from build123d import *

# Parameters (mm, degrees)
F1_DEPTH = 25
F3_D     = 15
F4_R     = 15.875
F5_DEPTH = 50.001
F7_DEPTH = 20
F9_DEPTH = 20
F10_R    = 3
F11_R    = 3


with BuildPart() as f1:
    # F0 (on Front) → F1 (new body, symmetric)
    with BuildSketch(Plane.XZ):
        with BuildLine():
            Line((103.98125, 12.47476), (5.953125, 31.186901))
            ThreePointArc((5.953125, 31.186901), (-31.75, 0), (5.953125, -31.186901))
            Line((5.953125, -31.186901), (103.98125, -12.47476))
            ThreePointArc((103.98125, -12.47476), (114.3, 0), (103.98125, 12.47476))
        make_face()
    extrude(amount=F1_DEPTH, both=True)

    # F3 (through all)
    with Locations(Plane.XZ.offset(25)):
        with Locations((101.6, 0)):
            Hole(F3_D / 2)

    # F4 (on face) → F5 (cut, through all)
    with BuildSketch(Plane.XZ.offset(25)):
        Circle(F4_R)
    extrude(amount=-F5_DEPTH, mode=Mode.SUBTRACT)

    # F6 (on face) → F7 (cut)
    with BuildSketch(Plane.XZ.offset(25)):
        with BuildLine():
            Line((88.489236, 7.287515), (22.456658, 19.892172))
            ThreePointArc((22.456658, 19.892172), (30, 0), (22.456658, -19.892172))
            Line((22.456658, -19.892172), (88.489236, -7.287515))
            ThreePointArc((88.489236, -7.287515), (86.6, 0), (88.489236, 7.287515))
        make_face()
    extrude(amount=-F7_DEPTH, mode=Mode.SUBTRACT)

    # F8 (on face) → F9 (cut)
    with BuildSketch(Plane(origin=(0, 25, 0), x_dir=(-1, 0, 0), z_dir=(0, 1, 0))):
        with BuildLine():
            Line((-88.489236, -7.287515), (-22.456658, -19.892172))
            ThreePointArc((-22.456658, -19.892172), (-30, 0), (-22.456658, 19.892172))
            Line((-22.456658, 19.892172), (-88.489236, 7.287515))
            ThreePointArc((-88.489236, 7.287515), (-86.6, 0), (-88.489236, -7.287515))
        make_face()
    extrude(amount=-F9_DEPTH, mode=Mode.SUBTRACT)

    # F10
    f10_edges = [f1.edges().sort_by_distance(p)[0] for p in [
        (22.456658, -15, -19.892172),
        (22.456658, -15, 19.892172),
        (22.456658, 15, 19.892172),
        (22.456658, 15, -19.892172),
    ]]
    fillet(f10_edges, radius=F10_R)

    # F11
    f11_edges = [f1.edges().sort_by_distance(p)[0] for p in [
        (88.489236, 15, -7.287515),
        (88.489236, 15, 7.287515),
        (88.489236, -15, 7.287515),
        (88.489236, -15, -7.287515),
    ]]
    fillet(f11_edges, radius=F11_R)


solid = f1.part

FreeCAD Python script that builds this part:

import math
import FreeCAD as App
import Part
import Sketcher

V = App.Vector


def edges_at(feature, points):
    """Names of the edges that pass closest to the given points."""
    edges = feature.Shape.Edges
    near = lambda p: min(range(len(edges)), key=lambda i: edges[i].distToShape(Part.Vertex(*p))[0])
    return sorted({f"Edge{near(p) + 1}" for p in points})

doc = App.newDocument("Part")
body = doc.addObject("PartDesign::Body", "Body")

# Sketch on XZ plane
sketch1 = body.newObject("Sketcher::SketchObject", "Sketch")
sketch1.AttachmentSupport = (doc.getObject("XZ_Plane"), [""])
sketch1.MapMode = "FlatFace"
sketch1.addGeometry([
    Part.LineSegment(V(103.98125, 12.47476, 0), V(5.953125, 31.186901, 0)),
    Part.ArcOfCircle(Part.Circle(V(0, 0, 0), V(0, 0, 1), 31.75), math.radians(79.193077), math.radians(280.806923)),
    Part.LineSegment(V(5.953125, -31.186901, 0), V(103.98125, -12.47476, 0)),
    Part.ArcOfCircle(Part.Circle(V(101.600001, 0, 0), V(0, 0, 1), 12.699999), math.radians(-79.193079), math.radians(79.193079)),
], False)
sketch1.addConstraint([
    Sketcher.Constraint("Tangent", 0, 2, 1, 1),
    Sketcher.Constraint("Tangent", 1, 2, 2, 1),
    Sketcher.Constraint("Tangent", 2, 2, 3, 1),
    Sketcher.Constraint("Tangent", 3, 2, 0, 1),
    Sketcher.Constraint("Coincident", 1, 3, -1, 1),
    Sketcher.Constraint("PointOnObject", 3, 3, -1),
    Sketcher.Constraint("Radius", 3, 12.699999),
    Sketcher.Constraint("Radius", 1, 31.75),
    Sketcher.Constraint("DistanceX", -1, 1, 3, 3, 101.600001),
])
pad1 = body.newObject("PartDesign::Pad", "Pad")
pad1.Profile = sketch1
pad1.Length = 50
pad1.Midplane = True

# Sketch on XZ plane
sketch2 = body.newObject("Sketcher::SketchObject", "Sketch001")
sketch2.AttachmentSupport = (doc.getObject("XZ_Plane"), [""])
sketch2.MapMode = "FlatFace"
sketch2.AttachmentOffset = App.Placement(V(0, 0, 25), App.Rotation())
sketch2.addGeometry(Part.Circle(V(101.6, 0, 0), V(0, 0, 1), 7.5), False)
sketch2.addConstraint([
    Sketcher.Constraint("PointOnObject", 0, 3, -1),
    Sketcher.Constraint("Diameter", 0, 15.0),
    Sketcher.Constraint("DistanceX", -1, 1, 0, 3, 101.6),
])
doc.recompute()
hole = body.newObject("PartDesign::Hole", "Hole")
hole.Profile = sketch2
hole.ThreadType = "None"
hole.Diameter = 15
hole.DepthType = "ThroughAll"

# Sketch on XZ plane
sketch3 = body.newObject("Sketcher::SketchObject", "Sketch002")
sketch3.AttachmentSupport = (doc.getObject("XZ_Plane"), [""])
sketch3.MapMode = "FlatFace"
sketch3.AttachmentOffset = App.Placement(V(0, 0, 25), App.Rotation())
sketch3.addGeometry(Part.Circle(V(0, 0, 0), V(0, 0, 1), 15.875), False)
sketch3.addConstraint([
    Sketcher.Constraint("Coincident", 0, 3, -1, 1),
    Sketcher.Constraint("Diameter", 0, 31.75),
])
pocket1 = body.newObject("PartDesign::Pocket", "Pocket")
pocket1.Profile = sketch3
pocket1.Type = "ThroughAll"

# Sketch on XZ plane
sketch4 = body.newObject("Sketcher::SketchObject", "Sketch003")
sketch4.AttachmentSupport = (doc.getObject("XZ_Plane"), [""])
sketch4.MapMode = "FlatFace"
sketch4.AttachmentOffset = App.Placement(V(0, 0, 25), App.Rotation())
sketch4.addGeometry([
    Part.LineSegment(V(88.489236, 7.287515, 0), V(22.456658, 19.892172, 0)),
    Part.ArcOfCircle(Part.Circle(V(0, 0, 0), V(0, 0, 1), 30), math.radians(-41.534615), math.radians(41.534615)),
    Part.LineSegment(V(22.456658, -19.892172, 0), V(88.489236, -7.287515, 0)),
    Part.ArcOfCircle(Part.Circle(V(101.600002, 0, 0), V(0, 0, 1), 15.000002), math.radians(150.932854), math.radians(209.067146)),
], False)
sketch4.addConstraint([
    Sketcher.Constraint("Coincident", 0, 2, 1, 2),
    Sketcher.Constraint("Coincident", 1, 1, 2, 1),
    Sketcher.Constraint("Coincident", 2, 2, 3, 2),
    Sketcher.Constraint("Coincident", 3, 1, 0, 1),
    Sketcher.Constraint("Coincident", 1, 3, -1, 1),
    Sketcher.Constraint("Symmetric", 2, 2, 3, 1, -1),
    Sketcher.Constraint("Vertical", 0, 2, 1, 1),
    Sketcher.Constraint("Radius", 1, 30.0),
    Sketcher.Constraint("Radius", 3, 15.000002),
    Sketcher.Constraint("DistanceX", -1, 1, 3, 3, 101.600002),
    Sketcher.Constraint("DistanceX", -1, 1, 0, 2, 22.456658),
    Sketcher.Constraint("DistanceX", 0, 2, 2, 2, 66.032578),
])
pocket2 = body.newObject("PartDesign::Pocket", "Pocket001")
pocket2.Profile = sketch4
pocket2.Length = 20

# Sketch on XZ plane
sketch5 = body.newObject("Sketcher::SketchObject", "Sketch004")
sketch5.AttachmentSupport = (doc.getObject("XZ_Plane"), [""])
sketch5.MapMode = "FlatFace"
sketch5.AttachmentOffset = App.Placement(V(0, 0, -25), App.Rotation())
sketch5.addGeometry([
    Part.LineSegment(V(88.489236, -7.287515, 0), V(22.456658, -19.892172, 0)),
    Part.ArcOfCircle(Part.Circle(V(0, 0, 0), V(0, 0, 1), 30), math.radians(-41.534615), math.radians(41.534615)),
    Part.LineSegment(V(22.456658, 19.892172, 0), V(88.489236, 7.287515, 0)),
    Part.ArcOfCircle(Part.Circle(V(101.600002, 0, 0), V(0, 0, 1), 15.000002), math.radians(150.932854), math.radians(209.067146)),
], False)
sketch5.addConstraint([
    Sketcher.Constraint("Coincident", 0, 2, 1, 1),
    Sketcher.Constraint("Coincident", 1, 2, 2, 1),
    Sketcher.Constraint("Coincident", 2, 2, 3, 1),
    Sketcher.Constraint("Coincident", 3, 2, 0, 1),
    Sketcher.Constraint("Coincident", 1, 3, -1, 1),
    Sketcher.Constraint("Symmetric", 2, 2, 3, 2, -1),
    Sketcher.Constraint("Vertical", 0, 2, 1, 2),
    Sketcher.Constraint("Radius", 1, 30.0),
    Sketcher.Constraint("Radius", 3, 15.000002),
    Sketcher.Constraint("DistanceX", -1, 1, 3, 3, 101.600002),
    Sketcher.Constraint("DistanceX", -1, 1, 0, 2, 22.456658),
    Sketcher.Constraint("DistanceX", 0, 2, 2, 2, 66.032578),
])
pocket3 = body.newObject("PartDesign::Pocket", "Pocket002")
pocket3.Profile = sketch5
pocket3.Length = 20
pocket3.Reversed = True
doc.recompute()

fillet = body.newObject("PartDesign::Fillet", "Fillet")
fillet.Base = (pocket3, edges_at(pocket3, [
    (22.457, -15, -19.892),
    (22.457, -15, 19.892),
    (22.457, 15, 19.892),
    (22.457, 15, -19.892),
]))
fillet.Radius = 3
doc.recompute()

fillet2 = body.newObject("PartDesign::Fillet", "Fillet001")
fillet2.Base = (fillet, edges_at(fillet, [
    (88.489, 15, -7.288),
    (88.489, 15, 7.288),
    (88.489, -15, 7.288),
    (88.489, -15, -7.288),
]))
fillet2.Radius = 3

doc.recompute()
